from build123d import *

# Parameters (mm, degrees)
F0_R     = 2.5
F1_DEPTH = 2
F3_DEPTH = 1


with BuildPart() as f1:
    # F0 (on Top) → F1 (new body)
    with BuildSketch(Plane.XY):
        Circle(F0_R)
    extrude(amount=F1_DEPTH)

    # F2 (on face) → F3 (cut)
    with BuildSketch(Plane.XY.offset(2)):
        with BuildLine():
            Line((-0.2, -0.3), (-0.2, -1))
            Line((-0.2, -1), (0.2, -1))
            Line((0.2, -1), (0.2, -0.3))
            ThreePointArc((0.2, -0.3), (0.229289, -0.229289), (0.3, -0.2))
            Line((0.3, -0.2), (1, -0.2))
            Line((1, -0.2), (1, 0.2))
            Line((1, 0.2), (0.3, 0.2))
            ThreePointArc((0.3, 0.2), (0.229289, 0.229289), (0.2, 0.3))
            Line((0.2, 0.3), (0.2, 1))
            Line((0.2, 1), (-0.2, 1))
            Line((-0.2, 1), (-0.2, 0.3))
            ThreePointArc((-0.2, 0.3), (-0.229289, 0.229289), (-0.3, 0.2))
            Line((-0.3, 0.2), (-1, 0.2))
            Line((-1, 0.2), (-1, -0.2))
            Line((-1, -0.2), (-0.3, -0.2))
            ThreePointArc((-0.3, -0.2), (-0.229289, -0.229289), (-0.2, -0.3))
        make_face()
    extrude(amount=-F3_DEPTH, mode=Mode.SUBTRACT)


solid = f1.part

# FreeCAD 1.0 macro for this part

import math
import FreeCAD as App
import Part
import Sketcher
from FreeCAD import Vector

doc = App.newDocument("Part")
body = doc.addObject("PartDesign::Body", "Body")

# Sketch on XY plane
sketch1 = body.newObject("Sketcher::SketchObject", "Sketch")
sketch1.AttachmentSupport = (doc.getObject("XY_Plane"), [""])
sketch1.MapMode = "FlatFace"
sketch1.addGeometry(Part.Circle(Vector(0, 0, 0), Vector(0, 0, 1), 2.5), False)
sketch1.addConstraint(Sketcher.Constraint("Coincident", 0, 3, -1, 1))
sketch1.addConstraint(Sketcher.Constraint("Diameter", 0, 5.0))
pad1 = body.newObject("PartDesign::Pad", "Pad")
pad1.Profile = sketch1
pad1.Length = 2

# Sketch on XY plane
sketch2 = body.newObject("Sketcher::SketchObject", "Sketch001")
sketch2.AttachmentSupport = (doc.getObject("XY_Plane"), [""])
sketch2.MapMode = "FlatFace"
sketch2.AttachmentOffset = App.Placement(Vector(0, 0, 2), App.Rotation())
sketch2.addGeometry(Part.LineSegment(Vector(-0.2, -0.3, 0), Vector(-0.2, -1, 0)), False)
sketch2.addGeometry(Part.LineSegment(Vector(-0.2, -1, 0), Vector(0.2, -1, 0)), False)
sketch2.addGeometry(Part.LineSegment(Vector(0.2, -1, 0), Vector(0.2, -0.3, 0)), False)
sketch2.addGeometry(Part.ArcOfCircle(Part.Circle(Vector(0.3, -0.3, 0), Vector(0, 0, 1), 0.1), math.radians(90), math.radians(180)), False)
sketch2.addGeometry(Part.LineSegment(Vector(0.3, -0.2, 0), Vector(1, -0.2, 0)), False)
sketch2.addGeometry(Part.LineSegment(Vector(1, -0.2, 0), Vector(1, 0.2, 0)), False)
sketch2.addGeometry(Part.LineSegment(Vector(1, 0.2, 0), Vector(0.3, 0.2, 0)), False)
sketch2.addGeometry(Part.ArcOfCircle(Part.Circle(Vector(0.3, 0.3, 0), Vector(0, 0, 1), 0.1), math.radians(180), math.radians(270)), False)
sketch2.addGeometry(Part.LineSegment(Vector(0.2, 0.3, 0), Vector(0.2, 1, 0)), False)
sketch2.addGeometry(Part.LineSegment(Vector(0.2, 1, 0), Vector(-0.2, 1, 0)), False)
sketch2.addGeometry(Part.LineSegment(Vector(-0.2, 1, 0), Vector(-0.2, 0.3, 0)), False)
sketch2.addGeometry(Part.ArcOfCircle(Part.Circle(Vector(-0.3, 0.3, 0), Vector(0, 0, 1), 0.1), math.radians(-90), math.radians(0)), False)
sketch2.addGeometry(Part.LineSegment(Vector(-0.3, 0.2, 0), Vector(-1, 0.2, 0)), False)
sketch2.addGeometry(Part.LineSegment(Vector(-1, 0.2, 0), Vector(-1, -0.2, 0)), False)
sketch2.addGeometry(Part.LineSegment(Vector(-1, -0.2, 0), Vector(-0.3, -0.2, 0)), False)
sketch2.addGeometry(Part.ArcOfCircle(Part.Circle(Vector(-0.3, -0.3, 0), Vector(0, 0, 1), 0.1), math.radians(0), math.radians(90)), False)
sketch2.addConstraint(Sketcher.Constraint("Coincident", 0, 2, 1, 1))
sketch2.addConstraint(Sketcher.Constraint("Coincident", 1, 2, 2, 1))
sketch2.addConstraint(Sketcher.Constraint("Coincident", 2, 2, 3, 2))
sketch2.addConstraint(Sketcher.Constraint("Coincident", 3, 1, 4, 1))
sketch2.addConstraint(Sketcher.Constraint("Coincident", 4, 2, 5, 1))
sketch2.addConstraint(Sketcher.Constraint("Coincident", 5, 2, 6, 1))
sketch2.addConstraint(Sketcher.Constraint("Coincident", 6, 2, 7, 2))
sketch2.addConstraint(Sketcher.Constraint("Coincident", 7, 1, 8, 1))
sketch2.addConstraint(Sketcher.Constraint("Coincident", 8, 2, 9, 1))
sketch2.addConstraint(Sketcher.Constraint("Coincident", 9, 2, 10, 1))
sketch2.addConstraint(Sketcher.Constraint("Coincident", 10, 2, 11, 2))
sketch2.addConstraint(Sketcher.Constraint("Coincident", 11, 1, 12, 1))
sketch2.addConstraint(Sketcher.Constraint("Coincident", 12, 2, 13, 1))
sketch2.addConstraint(Sketcher.Constraint("Coincident", 13, 2, 14, 1))
sketch2.addConstraint(Sketcher.Constraint("Coincident", 14, 2, 15, 2))
sketch2.addConstraint(Sketcher.Constraint("Coincident", 15, 1, 0, 1))
sketch2.addConstraint(Sketcher.Constraint("Vertical", 0))
sketch2.addConstraint(Sketcher.Constraint("Horizontal", 1))
sketch2.addConstraint(Sketcher.Constraint("Vertical", 2))
sketch2.addConstraint(Sketcher.Constraint("Horizontal", 4))
sketch2.addConstraint(Sketcher.Constraint("Vertical", 5))
sketch2.addConstraint(Sketcher.Constraint("Horizontal", 6))
sketch2.addConstraint(Sketcher.Constraint("Vertical", 8))
sketch2.addConstraint(Sketcher.Constraint("Horizontal", 9))
sketch2.addConstraint(Sketcher.Constraint("Vertical", 10))
sketch2.addConstraint(Sketcher.Constraint("Horizontal", 12))
sketch2.addConstraint(Sketcher.Constraint("Vertical", 13))
sketch2.addConstraint(Sketcher.Constraint("Horizontal", 14))
sketch2.addConstraint(Sketcher.Constraint("Equal", 3, 7))
sketch2.addConstraint(Sketcher.Constraint("Equal", 7, 11))
sketch2.addConstraint(Sketcher.Constraint("Equal", 11, 15))
sketch2.addConstraint(Sketcher.Constraint("Symmetric", 3, 3, 11, 3, -1, 1))
sketch2.addConstraint(Sketcher.Constraint("Symmetric", 7, 3, 15, 3, -1, 1))
sketch2.addConstraint(Sketcher.Constraint("Symmetric", 7, 3, 11, 3, -2))
sketch2.addConstraint(Sketcher.Constraint("Horizontal", 15, 3, 2, 2))
sketch2.addConstraint(Sketcher.Constraint("Horizontal", 11, 3, 7, 1))
sketch2.addConstraint(Sketcher.Constraint("Horizontal", 7, 1, 10, 2))
sketch2.addConstraint(Sketcher.Constraint("Horizontal", 2, 2, 15, 1))
sketch2.addConstraint(Sketcher.Constraint("Vertical", 7, 3, 3, 1))
sketch2.addConstraint(Sketcher.Constraint("Vertical", 3, 1, 6, 2))
sketch2.addConstraint(Sketcher.Constraint("Vertical", 15, 3, 11, 1))
sketch2.addConstraint(Sketcher.Constraint("Vertical", 11, 1, 14, 2))
sketch2.addConstraint(Sketcher.Constraint("Equal", 6, 12))
sketch2.addConstraint(Sketcher.Constraint("Equal", 14, 0))
sketch2.addConstraint(Sketcher.Constraint("Equal", 9, 5))
sketch2.addConstraint(Sketcher.Constraint("Equal", 2, 8))
sketch2.addConstraint(Sketcher.Constraint("Radius", 3, 0.099999))
sketch2.addConstraint(Sketcher.Constraint("DistanceX", 1, 1, 1, 2, 0.4))
sketch2.addConstraint(Sketcher.Constraint("DistanceX", 4, 1, 4, 2, 0.7))
pocket1 = body.newObject("PartDesign::Pocket", "Pocket")
pocket1.Profile = sketch2
pocket1.Length = 1

doc.recompute()
